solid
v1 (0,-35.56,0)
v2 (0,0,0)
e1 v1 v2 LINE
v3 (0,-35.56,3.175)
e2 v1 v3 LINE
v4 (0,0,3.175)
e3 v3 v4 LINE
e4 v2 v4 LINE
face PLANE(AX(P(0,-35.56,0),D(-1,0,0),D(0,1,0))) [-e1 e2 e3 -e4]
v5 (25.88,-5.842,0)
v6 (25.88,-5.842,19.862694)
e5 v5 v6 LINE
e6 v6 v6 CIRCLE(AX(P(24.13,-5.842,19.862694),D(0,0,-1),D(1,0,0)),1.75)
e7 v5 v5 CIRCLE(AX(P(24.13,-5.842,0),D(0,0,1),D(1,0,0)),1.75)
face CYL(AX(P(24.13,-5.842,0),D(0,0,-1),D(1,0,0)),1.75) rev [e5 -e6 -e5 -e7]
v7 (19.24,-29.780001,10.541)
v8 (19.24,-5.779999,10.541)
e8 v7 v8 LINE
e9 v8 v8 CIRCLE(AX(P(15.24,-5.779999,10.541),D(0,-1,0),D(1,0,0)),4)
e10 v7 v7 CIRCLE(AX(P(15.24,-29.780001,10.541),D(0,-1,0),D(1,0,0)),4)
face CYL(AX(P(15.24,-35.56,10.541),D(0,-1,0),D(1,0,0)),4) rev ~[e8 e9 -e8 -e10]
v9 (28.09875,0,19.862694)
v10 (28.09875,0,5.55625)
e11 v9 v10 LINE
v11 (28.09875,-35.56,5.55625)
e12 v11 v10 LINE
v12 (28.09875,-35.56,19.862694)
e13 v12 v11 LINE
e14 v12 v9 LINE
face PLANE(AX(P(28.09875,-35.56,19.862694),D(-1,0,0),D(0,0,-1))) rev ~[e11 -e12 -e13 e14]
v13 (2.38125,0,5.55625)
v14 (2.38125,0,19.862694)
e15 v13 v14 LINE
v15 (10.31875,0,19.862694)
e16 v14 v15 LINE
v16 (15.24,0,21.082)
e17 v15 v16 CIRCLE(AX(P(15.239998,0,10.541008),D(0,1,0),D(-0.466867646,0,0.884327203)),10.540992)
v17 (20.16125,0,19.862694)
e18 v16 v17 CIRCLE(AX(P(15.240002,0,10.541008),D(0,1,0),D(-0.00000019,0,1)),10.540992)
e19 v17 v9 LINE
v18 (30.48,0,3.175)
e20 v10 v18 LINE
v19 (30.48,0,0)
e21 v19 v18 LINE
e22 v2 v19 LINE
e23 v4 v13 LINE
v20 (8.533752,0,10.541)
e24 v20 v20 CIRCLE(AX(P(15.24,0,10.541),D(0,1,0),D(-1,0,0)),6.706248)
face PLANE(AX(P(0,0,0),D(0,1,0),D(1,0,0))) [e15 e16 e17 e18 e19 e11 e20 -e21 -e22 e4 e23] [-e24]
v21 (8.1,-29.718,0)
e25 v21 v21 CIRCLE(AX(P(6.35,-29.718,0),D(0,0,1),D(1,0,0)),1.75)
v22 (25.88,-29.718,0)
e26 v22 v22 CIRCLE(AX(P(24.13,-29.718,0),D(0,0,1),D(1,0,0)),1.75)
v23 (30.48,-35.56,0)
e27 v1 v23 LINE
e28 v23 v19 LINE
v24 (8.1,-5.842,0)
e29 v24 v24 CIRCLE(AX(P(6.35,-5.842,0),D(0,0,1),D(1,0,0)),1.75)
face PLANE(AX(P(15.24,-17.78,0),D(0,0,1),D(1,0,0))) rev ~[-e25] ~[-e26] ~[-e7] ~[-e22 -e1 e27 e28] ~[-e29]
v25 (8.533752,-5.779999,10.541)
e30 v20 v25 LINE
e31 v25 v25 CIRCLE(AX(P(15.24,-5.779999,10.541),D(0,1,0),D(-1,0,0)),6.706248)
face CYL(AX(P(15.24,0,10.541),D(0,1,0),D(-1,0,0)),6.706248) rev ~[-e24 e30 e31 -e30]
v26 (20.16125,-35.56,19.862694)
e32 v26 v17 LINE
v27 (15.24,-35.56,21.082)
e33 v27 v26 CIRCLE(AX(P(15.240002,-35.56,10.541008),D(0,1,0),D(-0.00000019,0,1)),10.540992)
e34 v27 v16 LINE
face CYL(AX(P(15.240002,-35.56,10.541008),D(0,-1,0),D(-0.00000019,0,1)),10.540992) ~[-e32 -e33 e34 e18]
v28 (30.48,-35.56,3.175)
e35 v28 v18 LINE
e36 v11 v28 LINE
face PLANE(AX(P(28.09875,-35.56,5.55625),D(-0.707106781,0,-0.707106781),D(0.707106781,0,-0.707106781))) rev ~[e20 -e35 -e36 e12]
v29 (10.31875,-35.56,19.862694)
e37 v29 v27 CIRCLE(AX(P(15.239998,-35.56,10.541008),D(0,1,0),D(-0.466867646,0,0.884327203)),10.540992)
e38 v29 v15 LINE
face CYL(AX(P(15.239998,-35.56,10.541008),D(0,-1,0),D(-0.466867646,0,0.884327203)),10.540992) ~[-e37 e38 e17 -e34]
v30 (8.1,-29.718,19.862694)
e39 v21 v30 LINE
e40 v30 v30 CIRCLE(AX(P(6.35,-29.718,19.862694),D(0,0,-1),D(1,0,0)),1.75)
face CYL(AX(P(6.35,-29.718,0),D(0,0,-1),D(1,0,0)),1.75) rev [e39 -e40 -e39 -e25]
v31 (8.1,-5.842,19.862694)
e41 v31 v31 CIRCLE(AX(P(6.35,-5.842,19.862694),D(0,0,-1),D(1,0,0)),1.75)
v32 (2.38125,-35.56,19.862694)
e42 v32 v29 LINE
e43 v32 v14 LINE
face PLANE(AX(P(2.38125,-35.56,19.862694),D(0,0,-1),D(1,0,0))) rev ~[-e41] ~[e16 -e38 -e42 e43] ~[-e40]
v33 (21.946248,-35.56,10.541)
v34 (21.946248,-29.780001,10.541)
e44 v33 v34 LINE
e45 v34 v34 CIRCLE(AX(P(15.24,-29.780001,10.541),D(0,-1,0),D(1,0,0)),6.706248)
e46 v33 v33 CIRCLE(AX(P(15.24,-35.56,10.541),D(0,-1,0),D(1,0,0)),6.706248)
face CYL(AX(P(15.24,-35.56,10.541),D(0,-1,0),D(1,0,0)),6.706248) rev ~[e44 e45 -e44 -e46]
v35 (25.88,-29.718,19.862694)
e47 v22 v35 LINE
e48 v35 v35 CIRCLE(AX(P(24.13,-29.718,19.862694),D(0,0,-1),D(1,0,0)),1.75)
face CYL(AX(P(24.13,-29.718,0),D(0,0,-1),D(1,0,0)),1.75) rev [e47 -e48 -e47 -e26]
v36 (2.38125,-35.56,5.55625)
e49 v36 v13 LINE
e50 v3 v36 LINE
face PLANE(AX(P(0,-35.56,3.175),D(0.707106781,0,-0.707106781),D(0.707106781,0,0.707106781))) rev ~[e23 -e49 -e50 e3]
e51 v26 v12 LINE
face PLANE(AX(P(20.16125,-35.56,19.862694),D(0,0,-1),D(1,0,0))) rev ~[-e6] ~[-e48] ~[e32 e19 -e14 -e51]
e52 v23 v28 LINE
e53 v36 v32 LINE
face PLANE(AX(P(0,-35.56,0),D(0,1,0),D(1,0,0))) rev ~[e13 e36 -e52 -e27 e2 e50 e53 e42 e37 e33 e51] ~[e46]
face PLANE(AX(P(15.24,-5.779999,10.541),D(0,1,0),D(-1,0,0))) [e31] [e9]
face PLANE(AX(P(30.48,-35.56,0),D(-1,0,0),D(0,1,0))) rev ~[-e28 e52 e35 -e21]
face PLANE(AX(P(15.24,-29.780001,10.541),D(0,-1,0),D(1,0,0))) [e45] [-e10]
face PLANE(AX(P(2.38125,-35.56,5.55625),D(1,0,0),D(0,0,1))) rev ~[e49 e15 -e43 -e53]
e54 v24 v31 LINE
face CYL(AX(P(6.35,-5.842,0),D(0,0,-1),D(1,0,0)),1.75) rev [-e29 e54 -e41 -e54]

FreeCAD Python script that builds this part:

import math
import FreeCAD as App
import Part
import Sketcher
from FreeCAD import Vector
Q = App.Units.Quantity


def add_polygon(sketch, points):
    """Adds a closed chain of lines whose ends are joined by coincident constraints."""
    first, n = sketch.GeometryCount, len(points)
    for a, b in zip(points, points[1:] + points[:1]):
        sketch.addGeometry(Part.LineSegment(App.Vector(*a, 0), App.Vector(*b, 0)), False)
    for i in range(n):
        sketch.addConstraint(Sketcher.Constraint("Coincident", first + i, 2, first + (i + 1) % n, 1))

doc = App.newDocument("Part")
body = doc.addObject("PartDesign::Body", "Body")

# Sketch on XY plane
sketch1 = body.newObject("Sketcher::SketchObject", "Sketch")
sketch1.AttachmentSupport = (doc.getObject("XY_Plane"), [""])
sketch1.MapMode = "FlatFace"
add_polygon(sketch1, [(0, 0), (0, -35.6), (30.5, -35.6), (30.5, 0)])  # lines 0-3
sketch1.addGeometry(Part.Circle(Vector(6.3, -29.7, 0), Vector(0, 0, 1), 1.8), False)  # 4
sketch1.addGeometry(Part.Circle(Vector(24.1, -29.7, 0), Vector(0, 0, 1), 1.8), False)  # 5
sketch1.addGeometry(Part.Circle(Vector(6.3, -5.8, 0), Vector(0, 0, 1), 1.8), False)  # 6
sketch1.addGeometry(Part.Circle(Vector(24.1, -5.8, 0), Vector(0, 0, 1), 1.8), False)  # 7
sketch1.addConstraint(Sketcher.Constraint("Vertical", 0))
sketch1.addConstraint(Sketcher.Constraint("Horizontal", 1))
sketch1.addConstraint(Sketcher.Constraint("Vertical", 2))
sketch1.addConstraint(Sketcher.Constraint("Horizontal", 3))
sketch1.addConstraint(Sketcher.Constraint("Coincident", 3, 2, -1, 1))
sketch1.addConstraint(Sketcher.Constraint("Equal", 4, 5))
sketch1.addConstraint(Sketcher.Constraint("Equal", 5, 6))
sketch1.addConstraint(Sketcher.Constraint("Equal", 6, 7))
sketch1.addConstraint(Sketcher.Constraint("Horizontal", 4, 3, 5, 3))
sketch1.addConstraint(Sketcher.Constraint("Horizontal", 6, 3, 7, 3))
sketch1.addConstraint(Sketcher.Constraint("Vertical", 4, 3, 6, 3))
sketch1.addConstraint(Sketcher.Constraint("Vertical", 5, 3, 7, 3))
sketch1.addConstraint(Sketcher.Constraint("DistanceX", 1, 1, 1, 2, Q("1.2 in")))
sketch1.addConstraint(Sketcher.Constraint("DistanceY", 0, 2, 0, 1, Q("1.4 in")))
sketch1.addConstraint(Sketcher.Constraint("DistanceX", 4, 3, 5, 3, Q("0.7 in")))
sketch1.addConstraint(Sketcher.Constraint("Diameter", 4, 3.5))
sketch1.addConstraint(Sketcher.Constraint("DistanceX", -1, 1, 4, 3, Q("0.25 in")))
sketch1.addConstraint(Sketcher.Constraint("DistanceY", 4, 3, -1, 1, Q("1.17 in")))
sketch1.addConstraint(Sketcher.Constraint("DistanceY", 6, 3, -1, 1, Q("0.23 in")))
pad1 = body.newObject("PartDesign::Pad", "Pad")
pad1.Profile = sketch1
pad1.Length = Q("0.83 in")

# Sketch on XZ plane
sketch2 = body.newObject("Sketcher::SketchObject", "Sketch001")
sketch2.AttachmentSupport = (doc.getObject("XZ_Plane"), [""])
sketch2.MapMode = "FlatFace"
sketch2.AttachmentOffset = App.Placement(Vector(0, 0, 1.4 * 25.4), App.Rotation())
sketch2.addGeometry(Part.Circle(Vector(15.2, 10.5, 0), Vector(0, 0, 1), 4), False)
sketch2.addGeometry(Part.ArcOfCircle(Part.Circle(Vector(15.2, 10.5, 0), Vector(0, 0, 1), 10.5), math.radians(90), math.radians(118)), False)
sketch2.addGeometry(Part.LineSegment(Vector(15.2, 21.1, 0), Vector(0, 21.1, 0)), False)
sketch2.addGeometry(Part.LineSegment(Vector(0, 21.1, 0), Vector(0, 3.2, 0)), False)
sketch2.addGeometry(Part.LineSegment(Vector(0, 3.2, 0), Vector(2.4, 5.6, 0)), False)
sketch2.addGeometry(Part.LineSegment(Vector(2.4, 5.6, 0), Vector(2.4, 19.9, 0)), False)
sketch2.addGeometry(Part.LineSegment(Vector(2.4, 19.9, 0), Vector(10.3, 19.9, 0)), False)
sketch2.addGeometry(Part.ArcOfCircle(Part.Circle(Vector(15.2, 10.5, 0), Vector(0, 0, 1), 10.5), math.radians(62), math.radians(90)), False)
sketch2.addGeometry(Part.LineSegment(Vector(20.2, 19.9, 0), Vector(28.1, 19.9, 0)), False)
sketch2.addGeometry(Part.LineSegment(Vector(28.1, 19.9, 0), Vector(28.1, 5.6, 0)), False)
sketch2.addGeometry(Part.LineSegment(Vector(28.1, 5.6, 0), Vector(30.5, 3.2, 0)), False)
sketch2.addGeometry(Part.LineSegment(Vector(30.5, 3.2, 0), Vector(30.5, 21.1, 0)), False)
sketch2.addGeometry(Part.LineSegment(Vector(30.5, 21.1, 0), Vector(15.2, 21.1, 0)), False)
sketch2.addConstraint(Sketcher.Constraint("Tangent", 1, 1, 2, 1))
sketch2.addConstraint(Sketcher.Constraint("Coincident", 2, 2, 3, 1))
sketch2.addConstraint(Sketcher.Constraint("Coincident", 3, 2, 4, 1))
sketch2.addConstraint(Sketcher.Constraint("Coincident", 4, 2, 5, 1))
sketch2.addConstraint(Sketcher.Constraint("Coincident", 5, 2, 6, 1))
sketch2.addConstraint(Sketcher.Constraint("Coincident", 6, 2, 1, 2))
sketch2.addConstraint(Sketcher.Constraint("Coincident", 7, 1, 8, 1))
sketch2.addConstraint(Sketcher.Constraint("Coincident", 8, 2, 9, 1))
sketch2.addConstraint(Sketcher.Constraint("Coincident", 9, 2, 10, 1))
sketch2.addConstraint(Sketcher.Constraint("Coincident", 10, 2, 11, 1))
sketch2.addConstraint(Sketcher.Constraint("Coincident", 11, 2, 12, 1))
sketch2.addConstraint(Sketcher.Constraint("Tangent", 12, 2, 7, 2))
sketch2.addConstraint(Sketcher.Constraint("Horizontal", 2))
sketch2.addConstraint(Sketcher.Constraint("Vertical", 3))
sketch2.addConstraint(Sketcher.Constraint("Vertical", 5))
sketch2.addConstraint(Sketcher.Constraint("Horizontal", 6))
sketch2.addConstraint(Sketcher.Constraint("Horizontal", 8))
sketch2.addConstraint(Sketcher.Constraint("Vertical", 9))
sketch2.addConstraint(Sketcher.Constraint("Vertical", 11))
sketch2.addConstraint(Sketcher.Constraint("Horizontal", 12))
sketch2.addConstraint(Sketcher.Constraint("Coincident", 1, 3, 0, 3))
sketch2.addConstraint(Sketcher.Constraint("Coincident", 7, 3, 0, 3))
sketch2.addConstraint(Sketcher.Constraint("Equal", 1, 7))
sketch2.addConstraint(Sketcher.Constraint("PointOnObject", 2, 2, -2))
sketch2.addConstraint(Sketcher.Constraint("Perpendicular", 4, 10))
sketch2.addConstraint(Sketcher.Constraint("Horizontal", 6, 2, 7, 1))
sketch2.addConstraint(Sketcher.Constraint("Horizontal", 4, 2, 9, 2))
sketch2.addConstraint(Sketcher.Constraint("Horizontal", 3, 2, 10, 2))
sketch2.addConstraint(Sketcher.Constraint("Equal", 6, 8))
sketch2.addConstraint(Sketcher.Constraint("Equal", 2, 12))
sketch2.addConstraint(Sketcher.Constraint("DistanceX", 2, 2, 2, 1, Q("0.6 in")))
sketch2.addConstraint(Sketcher.Constraint("Diameter", 0, 8.0))
sketch2.addConstraint(Sketcher.Constraint("DistanceX", 6, 1, 6, 2, Q("0.3125 in")))
sketch2.addConstraint(Sketcher.Constraint("DistanceY", 3, 2, 3, 1, Q("0.705 in")))
sketch2.addConstraint(Sketcher.Constraint("DistanceY", -1, 1, 1, 1, Q("0.83 in")))
sketch2.addConstraint(Sketcher.Constraint("DistanceY", 3, 2, 0, 3, Q("0.29 in")))
sketch2.addConstraint(Sketcher.Constraint("DistanceX", -1, 1, 4, 2, Q("0.09375 in")))
pocket1 = body.newObject("PartDesign::Pocket", "Pocket")
pocket1.Profile = sketch2
pocket1.Type = "ThroughAll"

# Sketch on XZ plane
sketch3 = body.newObject("Sketcher::SketchObject", "Sketch002")
sketch3.AttachmentSupport = (doc.getObject("XZ_Plane"), [""])
sketch3.MapMode = "FlatFace"
sketch3.AttachmentOffset = App.Placement(Vector(0, 0, 1.4 * 25.4), App.Rotation())
sketch3.addGeometry(Part.Circle(Vector(15, 11, 0), Vector(0, 0, 1), 7), False)
sketch3.addConstraint(Sketcher.Constraint("DistanceX", -1, 1, 0, 3, Q("0.6 in")))
sketch3.addConstraint(Sketcher.Constraint("DistanceY", -1, 1, 0, 3, Q("0.415 in")))
sketch3.addConstraint(Sketcher.Constraint("Diameter", 0, 13.412496))
pocket2 = body.newObject("PartDesign::Pocket", "Pocket001")
pocket2.Profile = sketch3
pocket2.Length = 5.779999

# Sketch on XZ plane
sketch4 = body.newObject("Sketcher::SketchObject", "Sketch003")
sketch4.AttachmentSupport = (doc.getObject("XZ_Plane"), [""])
sketch4.MapMode = "FlatFace"
sketch4.addGeometry(Part.Circle(Vector(15, 11, 0), Vector(0, 0, 1), 7), False)
sketch4.addConstraint(Sketcher.Constraint("DistanceX", -1, 1, 0, 3, Q("0.6 in")))
sketch4.addConstraint(Sketcher.Constraint("DistanceY", -1, 1, 0, 3, Q("0.415 in")))
sketch4.addConstraint(Sketcher.Constraint("Diameter", 0, 13.412496))
pocket3 = body.newObject("PartDesign::Pocket", "Pocket002")
pocket3.Profile = sketch4
pocket3.Length = 5.779999
pocket3.Reversed = True

doc.recompute()
